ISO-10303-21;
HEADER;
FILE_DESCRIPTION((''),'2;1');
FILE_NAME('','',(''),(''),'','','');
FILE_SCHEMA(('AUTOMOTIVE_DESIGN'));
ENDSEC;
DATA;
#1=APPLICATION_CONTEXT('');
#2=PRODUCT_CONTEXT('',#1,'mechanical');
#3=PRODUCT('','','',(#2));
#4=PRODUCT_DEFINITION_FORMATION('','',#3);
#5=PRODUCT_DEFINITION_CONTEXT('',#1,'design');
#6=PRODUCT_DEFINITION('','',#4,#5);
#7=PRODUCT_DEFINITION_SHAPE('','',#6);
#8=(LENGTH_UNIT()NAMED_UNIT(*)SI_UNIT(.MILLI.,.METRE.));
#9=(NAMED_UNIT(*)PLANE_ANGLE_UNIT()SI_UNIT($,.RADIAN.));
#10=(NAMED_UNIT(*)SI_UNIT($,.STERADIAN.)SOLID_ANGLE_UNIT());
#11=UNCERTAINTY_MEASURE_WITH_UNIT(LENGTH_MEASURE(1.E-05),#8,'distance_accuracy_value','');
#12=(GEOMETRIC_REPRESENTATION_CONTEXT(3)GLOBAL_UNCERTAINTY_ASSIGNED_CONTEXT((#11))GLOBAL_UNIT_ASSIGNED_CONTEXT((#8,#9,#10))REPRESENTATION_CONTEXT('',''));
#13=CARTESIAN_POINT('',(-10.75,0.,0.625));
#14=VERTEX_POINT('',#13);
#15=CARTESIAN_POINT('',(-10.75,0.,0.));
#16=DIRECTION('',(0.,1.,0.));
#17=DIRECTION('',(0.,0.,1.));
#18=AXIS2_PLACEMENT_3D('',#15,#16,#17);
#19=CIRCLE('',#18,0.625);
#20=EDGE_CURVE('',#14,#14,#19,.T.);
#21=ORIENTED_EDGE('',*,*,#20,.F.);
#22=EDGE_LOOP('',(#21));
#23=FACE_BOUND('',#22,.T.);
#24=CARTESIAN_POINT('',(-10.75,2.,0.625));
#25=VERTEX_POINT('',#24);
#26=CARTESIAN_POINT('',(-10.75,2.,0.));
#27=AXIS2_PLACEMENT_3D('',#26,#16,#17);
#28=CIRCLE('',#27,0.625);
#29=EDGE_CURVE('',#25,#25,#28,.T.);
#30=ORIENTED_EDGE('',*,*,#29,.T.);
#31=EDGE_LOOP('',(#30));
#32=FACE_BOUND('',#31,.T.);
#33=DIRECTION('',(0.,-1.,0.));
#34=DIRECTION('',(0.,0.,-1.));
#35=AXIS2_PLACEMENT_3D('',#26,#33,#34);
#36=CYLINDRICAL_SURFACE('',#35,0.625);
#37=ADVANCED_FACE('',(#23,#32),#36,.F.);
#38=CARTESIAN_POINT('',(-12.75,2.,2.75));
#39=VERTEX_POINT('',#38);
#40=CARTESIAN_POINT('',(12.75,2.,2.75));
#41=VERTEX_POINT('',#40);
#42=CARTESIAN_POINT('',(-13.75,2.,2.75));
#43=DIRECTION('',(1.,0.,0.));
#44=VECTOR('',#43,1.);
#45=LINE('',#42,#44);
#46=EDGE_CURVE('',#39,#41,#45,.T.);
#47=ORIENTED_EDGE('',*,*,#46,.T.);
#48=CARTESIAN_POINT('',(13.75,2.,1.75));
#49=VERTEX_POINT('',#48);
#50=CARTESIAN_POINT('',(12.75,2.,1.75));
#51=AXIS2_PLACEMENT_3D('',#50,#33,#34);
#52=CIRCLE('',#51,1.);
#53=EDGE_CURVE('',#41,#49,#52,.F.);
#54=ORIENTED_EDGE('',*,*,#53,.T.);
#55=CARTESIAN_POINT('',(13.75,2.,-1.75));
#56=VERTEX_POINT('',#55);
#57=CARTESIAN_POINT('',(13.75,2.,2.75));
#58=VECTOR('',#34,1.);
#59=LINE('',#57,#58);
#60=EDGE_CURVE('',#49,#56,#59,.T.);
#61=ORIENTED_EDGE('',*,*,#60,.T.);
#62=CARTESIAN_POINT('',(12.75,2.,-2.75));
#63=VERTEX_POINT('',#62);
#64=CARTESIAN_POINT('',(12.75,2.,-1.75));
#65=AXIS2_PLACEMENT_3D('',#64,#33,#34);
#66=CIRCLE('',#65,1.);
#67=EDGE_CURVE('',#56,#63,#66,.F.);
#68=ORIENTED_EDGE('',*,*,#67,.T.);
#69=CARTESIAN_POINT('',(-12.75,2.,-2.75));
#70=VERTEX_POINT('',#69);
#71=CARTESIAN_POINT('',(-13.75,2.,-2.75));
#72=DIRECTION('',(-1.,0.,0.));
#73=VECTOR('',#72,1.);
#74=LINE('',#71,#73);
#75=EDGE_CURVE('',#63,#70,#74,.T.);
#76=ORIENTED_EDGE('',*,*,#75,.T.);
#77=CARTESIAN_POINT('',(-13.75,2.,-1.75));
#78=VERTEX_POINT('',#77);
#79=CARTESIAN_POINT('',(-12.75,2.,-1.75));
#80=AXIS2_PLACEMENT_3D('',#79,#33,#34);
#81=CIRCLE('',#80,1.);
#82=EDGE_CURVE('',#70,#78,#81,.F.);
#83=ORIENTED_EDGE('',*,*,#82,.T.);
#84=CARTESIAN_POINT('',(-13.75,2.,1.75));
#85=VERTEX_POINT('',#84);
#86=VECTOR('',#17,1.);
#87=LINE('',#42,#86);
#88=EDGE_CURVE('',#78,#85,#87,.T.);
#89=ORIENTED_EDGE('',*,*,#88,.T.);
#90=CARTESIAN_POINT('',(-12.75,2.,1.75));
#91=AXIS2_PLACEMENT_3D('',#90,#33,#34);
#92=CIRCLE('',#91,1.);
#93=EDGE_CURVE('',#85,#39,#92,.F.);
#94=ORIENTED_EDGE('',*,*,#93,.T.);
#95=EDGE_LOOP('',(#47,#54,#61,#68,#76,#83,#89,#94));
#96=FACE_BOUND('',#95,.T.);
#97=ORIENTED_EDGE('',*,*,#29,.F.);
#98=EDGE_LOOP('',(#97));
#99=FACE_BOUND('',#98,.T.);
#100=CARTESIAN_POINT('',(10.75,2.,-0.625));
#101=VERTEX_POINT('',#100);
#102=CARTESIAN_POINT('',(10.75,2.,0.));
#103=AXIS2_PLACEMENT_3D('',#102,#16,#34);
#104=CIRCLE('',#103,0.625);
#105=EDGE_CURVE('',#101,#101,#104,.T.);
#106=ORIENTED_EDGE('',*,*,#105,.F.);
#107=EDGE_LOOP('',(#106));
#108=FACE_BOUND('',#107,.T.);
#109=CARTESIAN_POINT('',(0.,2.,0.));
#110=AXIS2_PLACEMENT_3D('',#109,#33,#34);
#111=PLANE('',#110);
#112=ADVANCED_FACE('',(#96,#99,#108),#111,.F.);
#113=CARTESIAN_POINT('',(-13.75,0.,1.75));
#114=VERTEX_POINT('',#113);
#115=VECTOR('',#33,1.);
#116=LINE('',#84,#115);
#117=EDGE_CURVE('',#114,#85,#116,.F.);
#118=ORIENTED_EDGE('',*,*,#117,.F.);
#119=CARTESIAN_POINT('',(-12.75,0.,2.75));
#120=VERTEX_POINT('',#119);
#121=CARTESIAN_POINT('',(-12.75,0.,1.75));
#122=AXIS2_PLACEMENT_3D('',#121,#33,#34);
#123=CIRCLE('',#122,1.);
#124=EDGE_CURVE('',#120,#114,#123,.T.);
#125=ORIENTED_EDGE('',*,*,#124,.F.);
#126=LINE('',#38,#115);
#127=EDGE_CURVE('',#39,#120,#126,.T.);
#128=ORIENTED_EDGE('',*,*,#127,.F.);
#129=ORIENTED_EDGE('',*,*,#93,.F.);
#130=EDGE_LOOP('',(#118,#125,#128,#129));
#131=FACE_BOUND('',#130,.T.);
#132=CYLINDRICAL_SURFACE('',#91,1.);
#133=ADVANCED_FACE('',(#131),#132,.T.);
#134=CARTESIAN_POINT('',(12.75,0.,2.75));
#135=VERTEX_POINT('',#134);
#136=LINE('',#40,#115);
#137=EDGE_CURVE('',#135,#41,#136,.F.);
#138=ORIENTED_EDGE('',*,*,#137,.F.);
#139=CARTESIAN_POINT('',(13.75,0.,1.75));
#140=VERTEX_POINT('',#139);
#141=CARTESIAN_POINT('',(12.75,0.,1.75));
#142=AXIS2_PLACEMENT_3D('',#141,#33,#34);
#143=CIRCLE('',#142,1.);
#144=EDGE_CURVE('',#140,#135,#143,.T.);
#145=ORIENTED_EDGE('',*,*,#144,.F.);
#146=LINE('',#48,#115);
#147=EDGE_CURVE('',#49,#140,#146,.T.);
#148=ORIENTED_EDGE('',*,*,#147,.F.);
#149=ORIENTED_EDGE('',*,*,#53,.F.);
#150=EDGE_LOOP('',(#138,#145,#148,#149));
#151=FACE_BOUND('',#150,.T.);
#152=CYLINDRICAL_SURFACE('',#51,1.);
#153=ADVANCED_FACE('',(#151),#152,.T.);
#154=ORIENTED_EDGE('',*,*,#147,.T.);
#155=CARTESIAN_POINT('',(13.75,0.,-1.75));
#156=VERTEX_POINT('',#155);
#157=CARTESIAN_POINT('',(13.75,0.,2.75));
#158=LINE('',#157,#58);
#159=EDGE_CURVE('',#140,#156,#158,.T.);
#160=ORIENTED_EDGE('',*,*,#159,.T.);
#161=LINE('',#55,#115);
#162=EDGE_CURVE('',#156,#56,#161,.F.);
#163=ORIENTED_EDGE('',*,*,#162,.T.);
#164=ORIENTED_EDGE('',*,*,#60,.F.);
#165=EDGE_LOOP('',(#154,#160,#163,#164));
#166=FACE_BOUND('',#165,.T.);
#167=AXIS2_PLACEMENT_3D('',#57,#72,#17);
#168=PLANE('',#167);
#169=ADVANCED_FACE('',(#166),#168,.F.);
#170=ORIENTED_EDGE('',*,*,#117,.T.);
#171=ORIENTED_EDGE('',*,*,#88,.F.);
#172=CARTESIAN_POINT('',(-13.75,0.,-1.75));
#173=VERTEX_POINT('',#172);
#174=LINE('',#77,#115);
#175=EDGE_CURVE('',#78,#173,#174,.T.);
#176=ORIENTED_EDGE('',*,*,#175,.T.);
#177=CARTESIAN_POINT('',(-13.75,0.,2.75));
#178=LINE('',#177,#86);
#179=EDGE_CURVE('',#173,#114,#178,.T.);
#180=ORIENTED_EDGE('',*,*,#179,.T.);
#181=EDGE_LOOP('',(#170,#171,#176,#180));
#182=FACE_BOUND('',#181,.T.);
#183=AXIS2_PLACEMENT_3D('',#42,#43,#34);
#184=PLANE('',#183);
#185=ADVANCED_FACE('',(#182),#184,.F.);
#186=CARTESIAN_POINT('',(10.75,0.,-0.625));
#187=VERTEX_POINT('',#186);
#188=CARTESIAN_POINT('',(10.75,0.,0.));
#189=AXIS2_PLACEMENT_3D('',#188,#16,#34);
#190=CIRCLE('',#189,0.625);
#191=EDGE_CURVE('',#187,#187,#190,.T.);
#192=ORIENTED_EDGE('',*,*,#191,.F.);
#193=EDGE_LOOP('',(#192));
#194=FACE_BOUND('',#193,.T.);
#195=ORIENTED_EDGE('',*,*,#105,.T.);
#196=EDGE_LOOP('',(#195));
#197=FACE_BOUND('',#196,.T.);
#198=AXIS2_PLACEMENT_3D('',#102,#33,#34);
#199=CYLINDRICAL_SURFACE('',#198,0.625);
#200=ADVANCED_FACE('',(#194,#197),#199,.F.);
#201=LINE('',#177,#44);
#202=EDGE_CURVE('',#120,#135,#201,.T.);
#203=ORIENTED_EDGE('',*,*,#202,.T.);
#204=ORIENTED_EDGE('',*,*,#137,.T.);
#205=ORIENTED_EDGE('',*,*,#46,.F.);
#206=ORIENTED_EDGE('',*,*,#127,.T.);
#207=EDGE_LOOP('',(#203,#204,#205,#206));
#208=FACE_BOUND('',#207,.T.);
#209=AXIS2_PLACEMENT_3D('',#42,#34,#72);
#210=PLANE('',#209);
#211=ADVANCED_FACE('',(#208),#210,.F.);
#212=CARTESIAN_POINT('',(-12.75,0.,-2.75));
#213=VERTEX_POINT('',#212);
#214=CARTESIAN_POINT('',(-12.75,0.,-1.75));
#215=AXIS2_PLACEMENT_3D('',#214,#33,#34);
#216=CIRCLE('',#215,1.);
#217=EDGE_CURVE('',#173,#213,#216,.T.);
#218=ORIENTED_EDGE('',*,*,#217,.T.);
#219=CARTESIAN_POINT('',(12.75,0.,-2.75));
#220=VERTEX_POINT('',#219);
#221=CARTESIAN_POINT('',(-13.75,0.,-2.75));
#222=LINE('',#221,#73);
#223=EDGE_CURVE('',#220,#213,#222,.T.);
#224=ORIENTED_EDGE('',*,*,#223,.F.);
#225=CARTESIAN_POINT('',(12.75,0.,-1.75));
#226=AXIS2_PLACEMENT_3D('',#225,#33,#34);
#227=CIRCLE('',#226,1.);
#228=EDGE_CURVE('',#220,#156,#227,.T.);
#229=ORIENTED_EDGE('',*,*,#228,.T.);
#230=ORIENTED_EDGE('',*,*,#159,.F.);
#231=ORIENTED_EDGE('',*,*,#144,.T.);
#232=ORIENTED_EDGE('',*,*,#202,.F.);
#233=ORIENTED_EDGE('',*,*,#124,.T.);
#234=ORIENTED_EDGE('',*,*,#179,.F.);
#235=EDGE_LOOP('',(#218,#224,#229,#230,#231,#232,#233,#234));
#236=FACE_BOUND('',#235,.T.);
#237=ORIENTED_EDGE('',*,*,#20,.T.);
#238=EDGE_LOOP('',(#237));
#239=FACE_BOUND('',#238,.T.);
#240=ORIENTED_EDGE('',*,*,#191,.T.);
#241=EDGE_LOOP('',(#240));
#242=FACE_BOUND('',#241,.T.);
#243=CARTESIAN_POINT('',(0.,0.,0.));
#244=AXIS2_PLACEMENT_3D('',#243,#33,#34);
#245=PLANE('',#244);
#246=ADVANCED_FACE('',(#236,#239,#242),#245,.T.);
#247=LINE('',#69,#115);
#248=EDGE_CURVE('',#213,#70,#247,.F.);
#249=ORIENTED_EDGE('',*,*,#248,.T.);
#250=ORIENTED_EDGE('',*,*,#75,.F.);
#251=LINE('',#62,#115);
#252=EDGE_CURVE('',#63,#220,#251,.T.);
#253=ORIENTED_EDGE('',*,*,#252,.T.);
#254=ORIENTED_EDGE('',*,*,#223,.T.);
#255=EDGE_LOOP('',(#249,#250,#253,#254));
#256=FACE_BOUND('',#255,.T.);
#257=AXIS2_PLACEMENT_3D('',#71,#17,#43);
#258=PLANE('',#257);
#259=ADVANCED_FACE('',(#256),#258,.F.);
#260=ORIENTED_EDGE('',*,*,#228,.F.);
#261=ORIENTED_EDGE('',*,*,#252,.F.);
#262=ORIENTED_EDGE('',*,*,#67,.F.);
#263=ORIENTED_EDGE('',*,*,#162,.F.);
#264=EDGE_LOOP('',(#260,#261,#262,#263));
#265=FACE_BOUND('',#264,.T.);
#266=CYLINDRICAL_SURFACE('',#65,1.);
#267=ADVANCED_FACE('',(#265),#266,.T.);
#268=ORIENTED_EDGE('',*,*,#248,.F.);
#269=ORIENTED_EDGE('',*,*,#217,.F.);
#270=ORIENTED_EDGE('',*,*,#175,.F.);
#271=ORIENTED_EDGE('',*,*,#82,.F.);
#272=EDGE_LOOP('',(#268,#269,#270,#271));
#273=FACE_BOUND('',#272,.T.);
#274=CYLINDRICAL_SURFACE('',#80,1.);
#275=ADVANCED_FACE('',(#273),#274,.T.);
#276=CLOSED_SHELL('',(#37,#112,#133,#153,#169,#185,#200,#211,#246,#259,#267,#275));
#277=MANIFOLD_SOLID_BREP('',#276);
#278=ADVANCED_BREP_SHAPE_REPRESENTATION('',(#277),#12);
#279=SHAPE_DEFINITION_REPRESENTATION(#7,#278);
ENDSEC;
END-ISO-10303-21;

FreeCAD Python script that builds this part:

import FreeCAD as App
import Part
import Sketcher
from FreeCAD import Vector


def edges_at(feature, points):
    """Names of the edges that pass closest to the given points."""
    edges = feature.Shape.Edges
    near = lambda p: min(range(len(edges)), key=lambda i: edges[i].distToShape(Part.Vertex(*p))[0])
    return sorted({f"Edge{near(p) + 1}" for p in points})


def add_polygon(sketch, points):
    """Adds a closed chain of lines whose ends are joined by coincident constraints."""
    first, n = sketch.GeometryCount, len(points)
    for a, b in zip(points, points[1:] + points[:1]):
        sketch.addGeometry(Part.LineSegment(App.Vector(*a, 0), App.Vector(*b, 0)), False)
    for i in range(n):
        sketch.addConstraint(Sketcher.Constraint("Coincident", first + i, 2, first + (i + 1) % n, 1))

doc = App.newDocument("Part")
params = doc.addObject("Spreadsheet::Sheet", "Params")
for row, (alias, value) in enumerate([
    ("sketch1_diameter", "1.25 mm"),
    ("sketch1_width", "27.5 mm"),
    ("sketch1_height", "5.5 mm"),
    ("pad1_length", "2 mm"),
    ("fillet_radius", "1 mm"),
], start=1):
    params.set(f"A{row}", alias)
    params.set(f"B{row}", "=" + value)
    params.setAlias(f"B{row}", alias)

body = doc.addObject("PartDesign::Body", "Body")

sketch1 = body.newObject("Sketcher::SketchObject", "Sketch")
sketch1.AttachmentSupport = (doc.getObject("XZ_Plane"), [""])
sketch1.MapMode = "FlatFace"
add_polygon(sketch1, [(-13.75, -2.75), (-13.75, 2.75), (13.75, 2.75), (13.75, -2.75)])
sketch1.addGeometry(Part.Circle(Vector(-10.75, 0, 0), Vector(0, 0, 1), 0.625), False)
sketch1.addGeometry(Part.Circle(Vector(10.75, 0, 0), Vector(0, 0, 1), 0.625), False)
sketch1.addConstraint([
    Sketcher.Constraint("Vertical", 0),
    Sketcher.Constraint("Horizontal", 1),
    Sketcher.Constraint("Vertical", 2),
    Sketcher.Constraint("Horizontal", 3),
    Sketcher.Constraint("Equal", 4, 5),
    Sketcher.Constraint("Symmetric", 4, 3, 5, 3, -1, 1),
    Sketcher.Constraint("Symmetric", 0, 2, 2, 2, -1, 1),
    Sketcher.Constraint("PointOnObject", 4, 3, -1),
    Sketcher.Constraint("Diameter", 4, 1.25),
    Sketcher.Constraint("DistanceX", 1, 1, 1, 2, 27.5),
    Sketcher.Constraint("DistanceY", 0, 1, 0, 2, 5.5),
    Sketcher.Constraint("DistanceX", 0, 2, 4, 3, 3.0),
])
sketch1.setExpression("Constraints[12]", "Params.sketch1_diameter")
sketch1.setExpression("Constraints[13]", "Params.sketch1_width")
sketch1.setExpression("Constraints[14]", "Params.sketch1_height")
pad1 = body.newObject("PartDesign::Pad", "Pad")
pad1.Profile = sketch1
pad1.setExpression("Length", "Params.pad1_length")
pad1.Reversed = True
doc.recompute()

fillet = body.newObject("PartDesign::Fillet", "Fillet")
fillet.Base = (pad1, edges_at(pad1, [
    (13.75, 1, 2.75),
    (-13.75, 1, 2.75),
    (-13.75, 1, -2.75),
    (13.75, 1, -2.75),
]))
fillet.setExpression("Radius", "Params.fillet_radius")

doc.recompute()
